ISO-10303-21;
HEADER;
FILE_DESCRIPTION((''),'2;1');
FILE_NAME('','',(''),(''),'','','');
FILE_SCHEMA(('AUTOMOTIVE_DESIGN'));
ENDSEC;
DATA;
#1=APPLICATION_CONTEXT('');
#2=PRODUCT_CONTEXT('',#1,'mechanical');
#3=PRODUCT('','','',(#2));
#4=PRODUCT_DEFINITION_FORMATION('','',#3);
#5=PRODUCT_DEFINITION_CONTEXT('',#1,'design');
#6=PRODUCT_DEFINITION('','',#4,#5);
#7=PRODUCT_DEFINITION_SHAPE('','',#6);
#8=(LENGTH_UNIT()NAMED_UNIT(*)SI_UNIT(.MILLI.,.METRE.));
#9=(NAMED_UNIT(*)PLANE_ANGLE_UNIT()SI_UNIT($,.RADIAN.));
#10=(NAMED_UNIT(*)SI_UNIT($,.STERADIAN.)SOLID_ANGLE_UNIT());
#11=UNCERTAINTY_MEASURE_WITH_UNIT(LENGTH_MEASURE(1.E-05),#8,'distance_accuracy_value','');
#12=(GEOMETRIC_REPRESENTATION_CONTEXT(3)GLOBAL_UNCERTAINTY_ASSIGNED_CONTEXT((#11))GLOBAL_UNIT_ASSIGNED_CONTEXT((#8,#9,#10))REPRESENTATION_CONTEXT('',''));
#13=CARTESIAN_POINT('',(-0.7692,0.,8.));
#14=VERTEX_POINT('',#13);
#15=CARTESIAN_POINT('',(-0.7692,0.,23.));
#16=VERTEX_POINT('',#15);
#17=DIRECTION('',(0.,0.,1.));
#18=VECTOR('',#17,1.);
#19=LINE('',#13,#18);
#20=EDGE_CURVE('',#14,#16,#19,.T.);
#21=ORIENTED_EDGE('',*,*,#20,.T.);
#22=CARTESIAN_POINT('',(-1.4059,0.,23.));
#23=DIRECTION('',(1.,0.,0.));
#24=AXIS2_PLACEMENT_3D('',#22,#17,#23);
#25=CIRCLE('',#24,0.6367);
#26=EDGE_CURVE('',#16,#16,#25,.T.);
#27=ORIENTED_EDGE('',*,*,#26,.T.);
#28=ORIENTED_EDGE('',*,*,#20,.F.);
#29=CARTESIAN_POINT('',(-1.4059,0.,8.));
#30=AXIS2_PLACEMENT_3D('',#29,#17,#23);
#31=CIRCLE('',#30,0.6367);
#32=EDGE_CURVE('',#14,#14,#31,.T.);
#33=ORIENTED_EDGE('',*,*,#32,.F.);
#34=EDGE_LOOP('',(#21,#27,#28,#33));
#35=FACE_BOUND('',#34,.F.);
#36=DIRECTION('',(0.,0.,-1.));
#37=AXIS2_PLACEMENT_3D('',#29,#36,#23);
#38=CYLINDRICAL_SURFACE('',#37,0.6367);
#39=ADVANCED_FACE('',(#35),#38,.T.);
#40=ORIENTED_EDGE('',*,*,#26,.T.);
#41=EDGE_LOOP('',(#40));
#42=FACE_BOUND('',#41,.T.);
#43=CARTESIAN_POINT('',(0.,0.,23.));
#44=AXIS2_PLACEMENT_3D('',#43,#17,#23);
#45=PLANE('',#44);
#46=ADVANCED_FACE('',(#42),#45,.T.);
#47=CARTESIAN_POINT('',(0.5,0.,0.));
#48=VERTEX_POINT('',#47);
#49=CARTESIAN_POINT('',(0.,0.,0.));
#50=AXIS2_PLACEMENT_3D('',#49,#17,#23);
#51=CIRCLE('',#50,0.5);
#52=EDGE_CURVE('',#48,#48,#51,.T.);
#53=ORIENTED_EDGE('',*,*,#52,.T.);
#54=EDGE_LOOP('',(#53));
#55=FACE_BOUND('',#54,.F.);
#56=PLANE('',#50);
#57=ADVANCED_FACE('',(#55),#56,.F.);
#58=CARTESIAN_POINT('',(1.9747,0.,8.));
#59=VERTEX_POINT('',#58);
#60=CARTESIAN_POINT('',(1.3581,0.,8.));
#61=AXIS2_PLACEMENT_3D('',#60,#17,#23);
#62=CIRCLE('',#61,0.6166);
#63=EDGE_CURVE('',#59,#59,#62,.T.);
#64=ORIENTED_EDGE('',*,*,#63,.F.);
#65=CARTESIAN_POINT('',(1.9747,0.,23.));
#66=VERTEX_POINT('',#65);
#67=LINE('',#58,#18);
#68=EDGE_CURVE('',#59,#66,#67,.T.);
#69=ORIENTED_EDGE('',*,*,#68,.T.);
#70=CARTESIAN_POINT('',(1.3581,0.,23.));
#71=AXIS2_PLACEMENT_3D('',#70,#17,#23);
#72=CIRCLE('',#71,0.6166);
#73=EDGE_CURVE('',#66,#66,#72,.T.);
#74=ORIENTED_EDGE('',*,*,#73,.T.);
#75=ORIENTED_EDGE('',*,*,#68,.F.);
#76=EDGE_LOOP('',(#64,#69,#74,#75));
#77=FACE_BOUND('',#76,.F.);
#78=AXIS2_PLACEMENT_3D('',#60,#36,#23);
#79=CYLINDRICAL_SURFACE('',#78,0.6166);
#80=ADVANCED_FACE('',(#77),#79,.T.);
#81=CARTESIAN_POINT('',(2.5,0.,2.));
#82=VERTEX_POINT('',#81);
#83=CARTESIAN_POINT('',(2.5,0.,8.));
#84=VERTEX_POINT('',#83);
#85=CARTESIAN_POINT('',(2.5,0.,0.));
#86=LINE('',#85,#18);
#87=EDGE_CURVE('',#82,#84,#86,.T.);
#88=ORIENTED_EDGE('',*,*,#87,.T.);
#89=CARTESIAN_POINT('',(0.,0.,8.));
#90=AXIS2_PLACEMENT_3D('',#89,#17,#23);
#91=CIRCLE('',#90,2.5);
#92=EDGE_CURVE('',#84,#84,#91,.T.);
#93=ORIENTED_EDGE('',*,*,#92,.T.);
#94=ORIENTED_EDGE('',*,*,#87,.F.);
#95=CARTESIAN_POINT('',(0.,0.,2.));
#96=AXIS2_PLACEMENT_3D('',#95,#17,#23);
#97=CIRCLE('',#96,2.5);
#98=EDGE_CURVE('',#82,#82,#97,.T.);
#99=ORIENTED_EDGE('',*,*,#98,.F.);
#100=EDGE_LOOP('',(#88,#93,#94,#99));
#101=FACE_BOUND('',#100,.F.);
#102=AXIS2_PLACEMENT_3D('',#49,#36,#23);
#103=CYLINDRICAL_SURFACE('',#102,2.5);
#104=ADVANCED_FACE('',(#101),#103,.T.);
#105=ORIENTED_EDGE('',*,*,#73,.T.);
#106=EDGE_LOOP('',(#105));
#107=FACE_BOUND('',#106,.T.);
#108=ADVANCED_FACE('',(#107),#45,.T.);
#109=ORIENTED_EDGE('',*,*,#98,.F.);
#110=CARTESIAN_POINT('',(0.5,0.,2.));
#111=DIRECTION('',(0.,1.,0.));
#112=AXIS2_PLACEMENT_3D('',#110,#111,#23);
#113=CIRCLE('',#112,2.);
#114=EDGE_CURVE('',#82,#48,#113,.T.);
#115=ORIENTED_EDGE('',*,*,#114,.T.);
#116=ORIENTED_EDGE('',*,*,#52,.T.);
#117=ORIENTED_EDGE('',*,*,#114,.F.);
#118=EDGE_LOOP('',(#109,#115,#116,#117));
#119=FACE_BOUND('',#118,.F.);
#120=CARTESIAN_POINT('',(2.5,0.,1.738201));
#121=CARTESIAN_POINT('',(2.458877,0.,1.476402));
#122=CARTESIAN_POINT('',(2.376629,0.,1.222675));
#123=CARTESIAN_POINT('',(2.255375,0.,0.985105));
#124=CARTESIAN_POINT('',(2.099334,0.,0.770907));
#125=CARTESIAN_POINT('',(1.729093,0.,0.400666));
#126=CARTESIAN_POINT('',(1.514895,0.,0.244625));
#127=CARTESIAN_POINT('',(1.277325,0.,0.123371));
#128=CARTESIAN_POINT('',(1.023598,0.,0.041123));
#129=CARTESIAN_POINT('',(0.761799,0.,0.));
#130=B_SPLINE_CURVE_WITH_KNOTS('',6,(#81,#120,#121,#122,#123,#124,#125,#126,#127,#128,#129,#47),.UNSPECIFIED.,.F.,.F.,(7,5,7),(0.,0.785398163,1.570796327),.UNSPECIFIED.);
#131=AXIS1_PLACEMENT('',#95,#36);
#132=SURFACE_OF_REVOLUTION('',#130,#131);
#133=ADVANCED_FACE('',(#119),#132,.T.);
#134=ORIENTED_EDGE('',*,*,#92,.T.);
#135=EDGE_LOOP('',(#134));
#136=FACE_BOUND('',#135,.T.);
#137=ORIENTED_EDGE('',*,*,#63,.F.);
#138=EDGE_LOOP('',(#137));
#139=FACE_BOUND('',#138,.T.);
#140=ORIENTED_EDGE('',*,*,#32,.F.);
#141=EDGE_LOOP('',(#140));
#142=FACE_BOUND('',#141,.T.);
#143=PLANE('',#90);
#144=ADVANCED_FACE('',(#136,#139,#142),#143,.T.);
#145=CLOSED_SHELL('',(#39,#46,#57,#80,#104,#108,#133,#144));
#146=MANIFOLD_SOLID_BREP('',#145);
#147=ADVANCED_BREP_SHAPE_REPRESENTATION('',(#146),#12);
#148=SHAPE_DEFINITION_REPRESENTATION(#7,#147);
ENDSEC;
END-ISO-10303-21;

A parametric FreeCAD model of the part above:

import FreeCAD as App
import Part
import Sketcher
from FreeCAD import Vector


def edges_at(feature, points):
    """Names of the edges that pass closest to the given points."""
    edges = feature.Shape.Edges
    near = lambda p: min(range(len(edges)), key=lambda i: edges[i].distToShape(Part.Vertex(*p))[0])
    return sorted({f"Edge{near(p) + 1}" for p in points})

doc = App.newDocument("Part")
body = doc.addObject("PartDesign::Body", "Body")

# Sketch on XY plane
sketch1 = body.newObject("Sketcher::SketchObject", "Sketch")
sketch1.AttachmentSupport = (doc.getObject("XY_Plane"), [""])
sketch1.MapMode = "FlatFace"
sketch1.addGeometry(Part.Circle(Vector(0, 0, 0), Vector(0, 0, 1), 2.5), False)
sketch1.addConstraint(Sketcher.Constraint("Coincident", 0, 3, -1, 1))
sketch1.addConstraint(Sketcher.Constraint("Diameter", 0, 5.0))
pad1 = body.newObject("PartDesign::Pad", "Pad")
pad1.Profile = sketch1
pad1.Length = 8

# Sketch on XY plane
sketch2 = body.newObject("Sketcher::SketchObject", "Sketch001")
sketch2.AttachmentSupport = (doc.getObject("XY_Plane"), [""])
sketch2.MapMode = "FlatFace"
sketch2.AttachmentOffset = App.Placement(Vector(0, 0, 8), App.Rotation())
sketch2.addGeometry(Part.Circle(Vector(1.3581, 0, 0), Vector(0, 0, 1), 0.6166), False)
sketch2.addGeometry(Part.Circle(Vector(-1.4059, 0, 0), Vector(0, 0, 1), 0.6367), False)
sketch2.addConstraint(Sketcher.Constraint("PointOnObject", 0, 3, -1))
sketch2.addConstraint(Sketcher.Constraint("PointOnObject", 1, 3, -1))
sketch2.addConstraint(Sketcher.Constraint("Diameter", 0, 1.2332))
sketch2.addConstraint(Sketcher.Constraint("Diameter", 1, 1.2734))
sketch2.addConstraint(Sketcher.Constraint("DistanceX", -1, 1, 0, 3, 1.358))
sketch2.addConstraint(Sketcher.Constraint("DistanceX", 1, 3, -1, 1, 1.406))
pad2 = body.newObject("PartDesign::Pad", "Pad001")
pad2.Profile = sketch2
pad2.Length = 15
doc.recompute()

fillet = body.newObject("PartDesign::Fillet", "Fillet")
fillet.Base = (pad2, edges_at(pad2, [(-2.5, 0, 0)]))
fillet.Radius = 2

doc.recompute()
